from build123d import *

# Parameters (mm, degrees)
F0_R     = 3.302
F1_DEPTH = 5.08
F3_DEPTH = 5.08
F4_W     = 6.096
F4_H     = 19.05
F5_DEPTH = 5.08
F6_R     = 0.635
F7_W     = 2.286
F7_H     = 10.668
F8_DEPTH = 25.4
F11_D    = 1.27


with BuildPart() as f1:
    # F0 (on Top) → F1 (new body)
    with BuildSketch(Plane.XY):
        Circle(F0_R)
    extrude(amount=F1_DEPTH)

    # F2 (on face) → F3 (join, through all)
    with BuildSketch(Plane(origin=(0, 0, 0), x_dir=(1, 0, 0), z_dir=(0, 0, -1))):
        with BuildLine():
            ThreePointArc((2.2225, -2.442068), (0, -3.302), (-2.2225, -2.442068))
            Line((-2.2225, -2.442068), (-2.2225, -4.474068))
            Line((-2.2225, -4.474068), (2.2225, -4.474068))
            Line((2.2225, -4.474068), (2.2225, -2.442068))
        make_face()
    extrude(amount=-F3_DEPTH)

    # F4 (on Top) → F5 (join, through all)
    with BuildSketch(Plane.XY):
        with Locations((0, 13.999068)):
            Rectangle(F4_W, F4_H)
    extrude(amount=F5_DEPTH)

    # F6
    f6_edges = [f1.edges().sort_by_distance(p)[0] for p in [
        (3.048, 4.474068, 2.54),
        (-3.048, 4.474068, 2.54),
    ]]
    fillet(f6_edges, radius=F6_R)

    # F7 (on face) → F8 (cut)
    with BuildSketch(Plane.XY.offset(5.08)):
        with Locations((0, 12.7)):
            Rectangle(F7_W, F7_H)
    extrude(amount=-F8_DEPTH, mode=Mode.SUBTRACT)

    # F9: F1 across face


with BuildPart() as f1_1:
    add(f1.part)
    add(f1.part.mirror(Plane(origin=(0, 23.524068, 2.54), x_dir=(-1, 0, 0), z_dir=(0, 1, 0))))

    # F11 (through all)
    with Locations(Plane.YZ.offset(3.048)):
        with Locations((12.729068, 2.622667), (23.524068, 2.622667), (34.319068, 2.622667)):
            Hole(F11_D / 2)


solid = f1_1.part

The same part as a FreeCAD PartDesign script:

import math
import FreeCAD as App
import Part
import Sketcher

V = App.Vector
Q = App.Units.Quantity


def edges_at(feature, points):
    """Names of the edges that pass closest to the given points."""
    edges = feature.Shape.Edges
    near = lambda p: min(range(len(edges)), key=lambda i: edges[i].distToShape(Part.Vertex(*p))[0])
    return sorted({f"Edge{near(p) + 1}" for p in points})


def add_polygon(sketch, points):
    """Adds a closed chain of lines whose ends are joined by coincident constraints."""
    first, n = sketch.GeometryCount, len(points)
    for a, b in zip(points, points[1:] + points[:1]):
        sketch.addGeometry(Part.LineSegment(App.Vector(*a, 0), App.Vector(*b, 0)), False)
    for i in range(n):
        sketch.addConstraint(Sketcher.Constraint("Coincident", first + i, 2, first + (i + 1) % n, 1))

doc = App.newDocument("Part")
body = doc.addObject("PartDesign::Body", "Body")

# Sketch on XY plane
sketch1 = body.newObject("Sketcher::SketchObject", "Sketch")
sketch1.AttachmentSupport = (doc.getObject("XY_Plane"), [""])
sketch1.MapMode = "FlatFace"
sketch1.addGeometry(Part.Circle(V(0, 0, 0), V(0, 0, 1), 3.302), False)
sketch1.addConstraint([
    Sketcher.Constraint("Coincident", 0, 3, -1, 1),
    Sketcher.Constraint("Diameter", 0, Q("0.26 in")),
])
pad1 = body.newObject("PartDesign::Pad", "Pad")
pad1.Profile = sketch1
pad1.Length = Q("0.2 in")

# Sketch on XY plane
sketch2 = body.newObject("Sketcher::SketchObject", "Sketch001")
sketch2.AttachmentSupport = (doc.getObject("XY_Plane"), [""])
sketch2.MapMode = "FlatFace"
sketch2.addGeometry([
    Part.ArcOfCircle(Part.Circle(V(0, 0.000001, 0), V(0, 0, 1), 3.301999), math.radians(47.694995), math.radians(132.305005)),
    Part.LineSegment(V(-2.2225, 2.442068, 0), V(-2.2225, 4.474068, 0)),
    Part.LineSegment(V(-2.2225, 4.474068, 0), V(2.2225, 4.474068, 0)),
    Part.LineSegment(V(2.2225, 4.474068, 0), V(2.2225, 2.442068, 0)),
], False)
sketch2.addConstraint([
    Sketcher.Constraint("Coincident", 0, 2, 1, 1),
    Sketcher.Constraint("Coincident", 1, 2, 2, 1),
    Sketcher.Constraint("Coincident", 2, 2, 3, 1),
    Sketcher.Constraint("Coincident", 3, 2, 0, 1),
    Sketcher.Constraint("Vertical", 1),
    Sketcher.Constraint("Horizontal", 2),
    Sketcher.Constraint("Vertical", 3),
    Sketcher.Constraint("Coincident", 0, 3, -1, 1),
    Sketcher.Constraint("Horizontal", 0, 2, 3, 2),
    Sketcher.Constraint("Radius", 0, Q("0.13 in")),
    Sketcher.Constraint("DistanceY", 1, 1, 1, 2, Q("0.08 in")),
    Sketcher.Constraint("DistanceX", 2, 1, 2, 2, Q("0.175 in")),
])
pad2 = body.newObject("PartDesign::Pad", "Pad001")
pad2.Profile = sketch2
pad2.Length = Q("0.2 in")

# Sketch on XY plane
sketch3 = body.newObject("Sketcher::SketchObject", "Sketch002")
sketch3.AttachmentSupport = (doc.getObject("XY_Plane"), [""])
sketch3.MapMode = "FlatFace"
add_polygon(sketch3, [(-3.048, 23.524068), (-3.048, 4.474068), (3.048, 4.474068), (3.048, 23.524068)])  # lines 0-3
sketch3.addConstraint([
    Sketcher.Constraint("Vertical", 0),
    Sketcher.Constraint("Horizontal", 1),
    Sketcher.Constraint("Vertical", 2),
    Sketcher.Constraint("Horizontal", 3),
    Sketcher.Constraint("DistanceX", 1, 1, 1, 2, Q("0.24 in")),
    Sketcher.Constraint("DistanceY", 0, 2, 0, 1, Q("0.75 in")),
    Sketcher.Constraint("DistanceX", 0, 2, -1, 1, Q("0.12 in")),
    Sketcher.Constraint("DistanceY", -1, 1, 2, 2, Q("23.524068 mm")),
])
pad3 = body.newObject("PartDesign::Pad", "Pad002")
pad3.Profile = sketch3
pad3.Length = Q("0.2 in")
doc.recompute()

fillet = body.newObject("PartDesign::Fillet", "Fillet")
fillet.Base = (pad3, edges_at(pad3, [(3.048, 4.474, 2.54), (-3.048, 4.474, 2.54)]))
fillet.Radius = Q("0.025 in")

# Sketch on XY plane
sketch4 = body.newObject("Sketcher::SketchObject", "Sketch003")
sketch4.AttachmentSupport = (doc.getObject("XY_Plane"), [""])
sketch4.MapMode = "FlatFace"
sketch4.AttachmentOffset = App.Placement(V(0, 0, 0.2 * 25.4), App.Rotation())
add_polygon(sketch4, [(-1.143, 18.034), (-1.143, 7.366), (1.143, 7.366), (1.143, 18.034)])  # lines 0-3
sketch4.addConstraint([
    Sketcher.Constraint("Vertical", 0),
    Sketcher.Constraint("Horizontal", 1),
    Sketcher.Constraint("Vertical", 2),
    Sketcher.Constraint("Horizontal", 3),
    Sketcher.Constraint("DistanceX", 1, 1, 1, 2, Q("0.09 in")),
    Sketcher.Constraint("DistanceY", 0, 2, 0, 1, Q("0.42 in")),
    Sketcher.Constraint("DistanceY", -1, 1, 0, 2, Q("0.29 in")),
    Sketcher.Constraint("DistanceX", 0, 2, -1, 1, Q("0.045 in")),
])
pocket1 = body.newObject("PartDesign::Pocket", "Pocket")
pocket1.Profile = sketch4
pocket1.Length = Q("1 in")
body2 = doc.addObject("PartDesign::Body", "Body001")
doc.recompute()

body2.BaseFeature = body
doc.recompute()

mirroring = doc.addObject("Part::Mirroring", "Mirroring")
mirroring.Source = body
mirroring.Base = V(0, 23.524068, 2.54)
mirroring.Normal = V(0, 1, 0)
body3 = doc.addObject("PartDesign::Body", "Body002")
body3.BaseFeature = mirroring
boolean = body2.newObject("PartDesign::Boolean", "Boolean")
boolean.Type = "Fuse"
boolean.addObjects([body3])
doc.recompute()

# Sketch on YZ plane
sketch5 = body2.newObject("Sketcher::SketchObject", "Sketch004")
sketch5.AttachmentSupport = (doc.getObject("YZ_Plane001"), [""])
sketch5.MapMode = "FlatFace"
sketch5.AttachmentOffset = App.Placement(V(0, 0, 0.12 * 25.4), App.Rotation())
sketch5.addGeometry([
    Part.Circle(V(12.729068, 2.622667, 0), V(0, 0, 1), 0.635),
    Part.Circle(V(23.524068, 2.622667, 0), V(0, 0, 1), 0.635),
    Part.Circle(V(34.319068, 2.622667, 0), V(0, 0, 1), 0.635),
], False)
sketch5.addConstraint([
    Sketcher.Constraint("Equal", 0, 1),
    Sketcher.Constraint("Equal", 1, 2),
    Sketcher.Constraint("Horizontal", 0, 3, 1, 3),
    Sketcher.Constraint("Horizontal", 1, 3, 2, 3),
    Sketcher.Constraint("Diameter", 0, Q("0.05 in")),
    Sketcher.Constraint("DistanceX", 0, 3, 2, 3, Q("0.85 in")),
    Sketcher.Constraint("DistanceX", 0, 3, 1, 3, Q("0.425 in")),
    Sketcher.Constraint("DistanceX", -1, 1, 1, 3, Q("23.524068 mm")),
    Sketcher.Constraint("DistanceY", -1, 1, 0, 3, Q("2.622667 mm")),
])
doc.recompute()
hole = body2.newObject("PartDesign::Hole", "Hole")
hole.Profile = sketch5
hole.ThreadType = "None"
hole.Diameter = Q("0.05 in")
hole.DepthType = "ThroughAll"
mirroring.Visibility = False

doc.recompute()
